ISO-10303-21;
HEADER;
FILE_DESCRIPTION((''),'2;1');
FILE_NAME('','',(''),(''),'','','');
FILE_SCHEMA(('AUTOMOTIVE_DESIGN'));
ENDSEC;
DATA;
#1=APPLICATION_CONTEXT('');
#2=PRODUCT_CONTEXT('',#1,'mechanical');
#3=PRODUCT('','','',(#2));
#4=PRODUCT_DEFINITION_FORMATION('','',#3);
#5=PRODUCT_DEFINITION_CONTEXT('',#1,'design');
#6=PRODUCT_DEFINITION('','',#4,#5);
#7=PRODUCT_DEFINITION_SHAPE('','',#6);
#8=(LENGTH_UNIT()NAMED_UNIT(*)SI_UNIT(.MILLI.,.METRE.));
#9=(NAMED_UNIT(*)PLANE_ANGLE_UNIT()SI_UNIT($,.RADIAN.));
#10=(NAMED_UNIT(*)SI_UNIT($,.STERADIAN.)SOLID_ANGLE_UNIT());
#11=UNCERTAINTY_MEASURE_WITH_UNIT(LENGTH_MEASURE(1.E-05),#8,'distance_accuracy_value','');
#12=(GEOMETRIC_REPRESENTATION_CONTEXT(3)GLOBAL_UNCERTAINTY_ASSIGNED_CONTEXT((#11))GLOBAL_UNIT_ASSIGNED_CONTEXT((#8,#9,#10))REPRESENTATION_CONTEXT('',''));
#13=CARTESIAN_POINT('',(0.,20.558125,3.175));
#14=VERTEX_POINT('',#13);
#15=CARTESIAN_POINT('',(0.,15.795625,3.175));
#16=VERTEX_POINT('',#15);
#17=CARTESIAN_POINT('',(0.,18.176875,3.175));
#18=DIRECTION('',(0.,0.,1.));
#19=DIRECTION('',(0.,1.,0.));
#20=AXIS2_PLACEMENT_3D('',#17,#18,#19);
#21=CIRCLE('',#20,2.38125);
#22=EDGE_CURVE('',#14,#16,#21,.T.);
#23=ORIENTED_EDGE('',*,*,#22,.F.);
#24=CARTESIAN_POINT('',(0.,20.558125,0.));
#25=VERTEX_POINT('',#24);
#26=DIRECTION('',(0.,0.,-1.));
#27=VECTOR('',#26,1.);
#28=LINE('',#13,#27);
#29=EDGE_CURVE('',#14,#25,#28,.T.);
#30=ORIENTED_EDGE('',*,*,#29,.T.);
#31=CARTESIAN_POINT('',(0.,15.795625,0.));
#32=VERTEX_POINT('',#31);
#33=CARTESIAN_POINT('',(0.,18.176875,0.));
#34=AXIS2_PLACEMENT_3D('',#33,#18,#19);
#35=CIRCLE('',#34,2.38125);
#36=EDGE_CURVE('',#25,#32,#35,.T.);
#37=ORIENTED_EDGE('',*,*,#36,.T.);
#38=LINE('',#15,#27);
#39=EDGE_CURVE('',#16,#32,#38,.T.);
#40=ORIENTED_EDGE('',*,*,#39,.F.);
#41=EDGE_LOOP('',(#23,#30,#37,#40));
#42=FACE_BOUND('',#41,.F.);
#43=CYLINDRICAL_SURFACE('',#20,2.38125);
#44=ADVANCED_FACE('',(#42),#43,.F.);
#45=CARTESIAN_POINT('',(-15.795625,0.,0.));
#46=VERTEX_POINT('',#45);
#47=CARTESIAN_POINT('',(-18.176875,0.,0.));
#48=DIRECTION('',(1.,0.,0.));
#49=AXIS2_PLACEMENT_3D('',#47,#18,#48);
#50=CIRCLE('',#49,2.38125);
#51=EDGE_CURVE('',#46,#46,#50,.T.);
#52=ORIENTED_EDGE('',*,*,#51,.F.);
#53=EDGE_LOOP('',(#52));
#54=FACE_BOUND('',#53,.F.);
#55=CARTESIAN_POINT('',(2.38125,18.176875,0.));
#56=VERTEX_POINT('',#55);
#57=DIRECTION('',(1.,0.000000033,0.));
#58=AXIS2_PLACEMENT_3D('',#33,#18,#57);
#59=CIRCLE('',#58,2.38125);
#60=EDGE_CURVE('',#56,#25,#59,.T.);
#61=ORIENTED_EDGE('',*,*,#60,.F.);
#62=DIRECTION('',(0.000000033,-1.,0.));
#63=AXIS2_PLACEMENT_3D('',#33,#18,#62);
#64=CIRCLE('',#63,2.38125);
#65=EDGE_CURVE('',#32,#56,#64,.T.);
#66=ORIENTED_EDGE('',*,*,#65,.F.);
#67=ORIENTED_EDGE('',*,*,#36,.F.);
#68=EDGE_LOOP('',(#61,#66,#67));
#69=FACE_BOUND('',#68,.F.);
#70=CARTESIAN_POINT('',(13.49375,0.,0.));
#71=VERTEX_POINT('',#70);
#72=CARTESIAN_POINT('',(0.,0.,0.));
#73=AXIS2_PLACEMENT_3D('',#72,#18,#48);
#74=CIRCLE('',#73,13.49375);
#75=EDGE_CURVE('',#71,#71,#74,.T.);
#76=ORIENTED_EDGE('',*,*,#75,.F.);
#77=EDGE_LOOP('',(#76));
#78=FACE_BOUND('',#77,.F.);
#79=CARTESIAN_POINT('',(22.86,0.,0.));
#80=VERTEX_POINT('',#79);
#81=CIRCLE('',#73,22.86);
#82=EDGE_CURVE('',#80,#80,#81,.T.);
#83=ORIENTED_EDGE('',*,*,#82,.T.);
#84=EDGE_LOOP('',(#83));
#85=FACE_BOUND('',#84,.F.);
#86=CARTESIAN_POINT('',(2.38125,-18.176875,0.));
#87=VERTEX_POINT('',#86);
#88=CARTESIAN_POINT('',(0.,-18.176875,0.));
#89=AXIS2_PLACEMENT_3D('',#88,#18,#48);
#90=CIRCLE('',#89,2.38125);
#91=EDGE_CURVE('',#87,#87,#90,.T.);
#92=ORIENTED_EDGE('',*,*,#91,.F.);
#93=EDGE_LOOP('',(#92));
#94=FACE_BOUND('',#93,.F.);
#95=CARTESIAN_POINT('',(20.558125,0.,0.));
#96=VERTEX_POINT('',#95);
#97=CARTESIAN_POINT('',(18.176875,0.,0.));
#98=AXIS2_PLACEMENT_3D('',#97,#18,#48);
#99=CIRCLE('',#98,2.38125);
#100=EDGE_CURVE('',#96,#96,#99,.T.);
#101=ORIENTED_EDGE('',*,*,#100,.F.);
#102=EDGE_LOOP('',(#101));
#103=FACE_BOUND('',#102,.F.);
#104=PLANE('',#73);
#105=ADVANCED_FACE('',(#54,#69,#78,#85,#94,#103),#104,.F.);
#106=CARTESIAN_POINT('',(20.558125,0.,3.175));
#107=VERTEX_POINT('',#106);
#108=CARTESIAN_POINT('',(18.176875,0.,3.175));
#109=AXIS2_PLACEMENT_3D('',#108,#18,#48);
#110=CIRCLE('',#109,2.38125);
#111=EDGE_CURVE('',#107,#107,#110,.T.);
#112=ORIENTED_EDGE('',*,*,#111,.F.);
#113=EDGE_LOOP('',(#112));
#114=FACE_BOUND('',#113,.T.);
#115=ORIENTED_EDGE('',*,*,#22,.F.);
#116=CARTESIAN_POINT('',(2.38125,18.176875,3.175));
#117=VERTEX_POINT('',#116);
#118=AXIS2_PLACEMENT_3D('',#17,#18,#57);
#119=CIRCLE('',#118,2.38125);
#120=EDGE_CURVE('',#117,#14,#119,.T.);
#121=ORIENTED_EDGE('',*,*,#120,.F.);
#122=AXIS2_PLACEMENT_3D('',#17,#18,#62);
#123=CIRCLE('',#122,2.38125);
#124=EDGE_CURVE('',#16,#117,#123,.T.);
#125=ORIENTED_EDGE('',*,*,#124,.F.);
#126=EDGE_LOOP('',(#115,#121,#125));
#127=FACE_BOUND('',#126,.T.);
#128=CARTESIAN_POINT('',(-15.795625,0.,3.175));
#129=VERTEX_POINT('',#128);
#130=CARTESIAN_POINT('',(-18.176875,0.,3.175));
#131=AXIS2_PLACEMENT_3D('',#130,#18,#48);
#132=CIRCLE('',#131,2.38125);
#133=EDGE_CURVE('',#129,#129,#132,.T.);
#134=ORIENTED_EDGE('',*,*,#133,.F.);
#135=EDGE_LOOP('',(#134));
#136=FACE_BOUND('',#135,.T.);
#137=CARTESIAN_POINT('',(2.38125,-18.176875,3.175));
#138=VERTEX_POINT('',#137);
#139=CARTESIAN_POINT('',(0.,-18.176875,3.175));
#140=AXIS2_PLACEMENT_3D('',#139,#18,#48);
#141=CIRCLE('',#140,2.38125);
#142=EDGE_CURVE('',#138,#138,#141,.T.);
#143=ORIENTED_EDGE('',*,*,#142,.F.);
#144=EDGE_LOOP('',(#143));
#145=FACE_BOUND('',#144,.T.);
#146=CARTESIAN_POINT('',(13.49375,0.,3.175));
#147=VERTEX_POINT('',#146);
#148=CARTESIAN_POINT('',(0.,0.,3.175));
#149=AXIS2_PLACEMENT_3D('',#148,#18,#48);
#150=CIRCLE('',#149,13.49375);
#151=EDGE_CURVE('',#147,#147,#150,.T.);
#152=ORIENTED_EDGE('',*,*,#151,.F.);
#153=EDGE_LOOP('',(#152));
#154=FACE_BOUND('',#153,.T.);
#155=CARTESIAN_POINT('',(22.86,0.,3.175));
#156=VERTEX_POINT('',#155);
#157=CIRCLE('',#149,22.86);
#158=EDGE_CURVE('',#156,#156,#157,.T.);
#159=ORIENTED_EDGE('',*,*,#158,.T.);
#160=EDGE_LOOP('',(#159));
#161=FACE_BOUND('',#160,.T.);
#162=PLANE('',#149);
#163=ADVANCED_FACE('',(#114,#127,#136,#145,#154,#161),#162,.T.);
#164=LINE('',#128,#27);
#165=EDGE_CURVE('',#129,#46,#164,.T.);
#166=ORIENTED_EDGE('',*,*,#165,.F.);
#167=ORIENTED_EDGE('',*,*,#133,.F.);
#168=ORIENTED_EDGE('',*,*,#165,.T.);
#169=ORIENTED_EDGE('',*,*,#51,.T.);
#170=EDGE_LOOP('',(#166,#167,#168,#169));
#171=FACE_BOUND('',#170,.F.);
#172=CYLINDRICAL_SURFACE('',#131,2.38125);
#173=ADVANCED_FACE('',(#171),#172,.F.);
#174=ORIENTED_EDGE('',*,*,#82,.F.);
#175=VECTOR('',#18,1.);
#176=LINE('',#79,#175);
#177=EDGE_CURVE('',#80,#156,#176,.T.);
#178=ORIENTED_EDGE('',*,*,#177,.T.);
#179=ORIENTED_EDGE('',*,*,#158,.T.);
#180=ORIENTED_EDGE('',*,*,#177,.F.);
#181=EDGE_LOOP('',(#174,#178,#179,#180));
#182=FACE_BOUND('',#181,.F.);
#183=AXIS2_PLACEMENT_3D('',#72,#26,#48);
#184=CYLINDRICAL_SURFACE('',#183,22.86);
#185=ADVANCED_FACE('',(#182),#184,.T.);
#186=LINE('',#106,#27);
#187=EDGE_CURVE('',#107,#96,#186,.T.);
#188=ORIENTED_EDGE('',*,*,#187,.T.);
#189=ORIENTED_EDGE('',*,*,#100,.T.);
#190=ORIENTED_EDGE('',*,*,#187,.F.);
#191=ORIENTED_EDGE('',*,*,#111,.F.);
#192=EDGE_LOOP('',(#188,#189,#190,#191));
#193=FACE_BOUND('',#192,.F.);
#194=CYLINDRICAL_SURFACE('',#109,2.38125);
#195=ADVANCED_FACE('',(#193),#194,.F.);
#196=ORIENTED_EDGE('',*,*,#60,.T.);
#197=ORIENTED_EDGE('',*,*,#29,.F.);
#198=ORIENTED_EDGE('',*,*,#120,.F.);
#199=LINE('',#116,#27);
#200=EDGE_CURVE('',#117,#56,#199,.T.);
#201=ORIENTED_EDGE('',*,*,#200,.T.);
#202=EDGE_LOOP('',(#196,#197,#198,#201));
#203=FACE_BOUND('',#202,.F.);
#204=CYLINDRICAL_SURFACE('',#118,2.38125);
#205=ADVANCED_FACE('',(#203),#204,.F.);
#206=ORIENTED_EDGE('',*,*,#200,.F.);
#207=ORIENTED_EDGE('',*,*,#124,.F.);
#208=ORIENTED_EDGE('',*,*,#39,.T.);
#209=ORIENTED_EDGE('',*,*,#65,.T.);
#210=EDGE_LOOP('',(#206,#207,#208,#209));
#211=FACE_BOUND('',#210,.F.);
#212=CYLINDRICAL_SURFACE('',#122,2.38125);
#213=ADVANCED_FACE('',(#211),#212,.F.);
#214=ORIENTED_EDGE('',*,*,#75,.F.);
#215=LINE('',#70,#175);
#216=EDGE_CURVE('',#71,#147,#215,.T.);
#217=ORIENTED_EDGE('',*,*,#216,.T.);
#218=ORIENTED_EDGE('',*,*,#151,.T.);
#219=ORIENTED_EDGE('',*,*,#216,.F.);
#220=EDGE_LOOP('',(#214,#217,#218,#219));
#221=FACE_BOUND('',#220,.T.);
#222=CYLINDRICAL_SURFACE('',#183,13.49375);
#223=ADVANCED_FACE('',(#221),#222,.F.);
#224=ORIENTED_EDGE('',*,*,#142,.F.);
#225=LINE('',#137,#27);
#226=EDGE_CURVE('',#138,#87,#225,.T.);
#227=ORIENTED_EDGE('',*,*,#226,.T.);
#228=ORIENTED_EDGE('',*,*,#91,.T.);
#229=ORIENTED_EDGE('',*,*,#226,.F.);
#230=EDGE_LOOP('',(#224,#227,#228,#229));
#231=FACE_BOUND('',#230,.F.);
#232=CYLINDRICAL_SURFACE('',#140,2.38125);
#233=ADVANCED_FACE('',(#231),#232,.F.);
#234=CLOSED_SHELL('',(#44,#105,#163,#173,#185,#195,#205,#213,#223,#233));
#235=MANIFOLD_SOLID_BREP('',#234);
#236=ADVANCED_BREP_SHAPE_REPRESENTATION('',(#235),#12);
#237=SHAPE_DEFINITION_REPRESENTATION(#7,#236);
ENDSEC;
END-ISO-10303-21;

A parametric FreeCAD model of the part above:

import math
import FreeCAD as App
import Part
import Sketcher
Q = App.Units.Quantity

doc = App.newDocument("Part")
body = doc.addObject("PartDesign::Body", "Body")

sketch1 = doc.addObject("Sketcher::SketchObject", "Sketch")
body.addObject(sketch1)
sketch1.AttachmentSupport = (doc.XY_Plane, [""])
sketch1.MapMode = "FlatFace"
sketch1.addGeometry([
    Part.Circle(App.Vector(0, 0, 0), App.Vector(0, 0, 1), 23),
    Part.Circle(App.Vector(0, 0, 0), App.Vector(0, 0, 1), 13),
], False)
sketch1.addConstraint([
    Sketcher.Constraint("Coincident", 0, 3, -1, 1),
    Sketcher.Constraint("Coincident", 1, 3, -1, 1),
    Sketcher.Constraint("Diameter", 0, Q("1.8 in")),
    Sketcher.Constraint("Diameter", 1, Q("1.0625 in")),
])
pad1 = doc.addObject("PartDesign::Pad", "Pad")
body.addObject(pad1)
pad1.Profile = sketch1
pad1.Length = Q("0.125 in")

sketch2 = doc.addObject("Sketcher::SketchObject", "Sketch001")
body.addObject(sketch2)
sketch2.AttachmentSupport = (doc.XY_Plane, [""])
sketch2.MapMode = "FlatFace"
sketch2.AttachmentOffset = App.Placement(App.Vector(0, 0, 0.125 * 25.4), App.Rotation())
sketch2.addGeometry([
    Part.ArcOfCircle(Part.Circle(App.Vector(0, 18.2, 0), App.Vector(0, 0, 1), 2.4), math.radians(0), math.radians(90)),
    Part.ArcOfCircle(Part.Circle(App.Vector(0, 18.2, 0), App.Vector(0, 0, 1), 2.4), math.radians(90), math.radians(270)),
    Part.ArcOfCircle(Part.Circle(App.Vector(0, 18.2, 0), App.Vector(0, 0, 1), 2.4), math.radians(-90), math.radians(0)),
    Part.Circle(App.Vector(-18.2, 0, 0), App.Vector(0, 0, 1), 2.4),
    Part.Circle(App.Vector(0, -18.2, 0), App.Vector(0, 0, 1), 2.4),
    Part.Circle(App.Vector(18.2, 0, 0), App.Vector(0, 0, 1), 2.4),
], False)
sketch2.addConstraint([
    Sketcher.Constraint("Tangent", 0, 2, 1, 1),
    Sketcher.Constraint("Tangent", 1, 2, 2, 1),
    Sketcher.Constraint("Tangent", 2, 2, 0, 1),
    Sketcher.Constraint("Equal", 2, 3),
    Sketcher.Constraint("Equal", 3, 4),
    Sketcher.Constraint("Equal", 4, 5),
    Sketcher.Constraint("Symmetric", 0, 3, 4, 3, -1, 1),
    Sketcher.Constraint("Symmetric", 3, 3, 5, 3, -1, 1),
    Sketcher.Constraint("PointOnObject", 0, 3, -2),
    Sketcher.Constraint("PointOnObject", 3, 3, -1),
    Sketcher.Constraint("PointOnObject", 0, 2, -2),
    Sketcher.Constraint("PointOnObject", 1, 2, -2),
    Sketcher.Constraint("Horizontal", 1, 3, 2, 2),
    Sketcher.Constraint("Diameter", 3, Q("0.1875 in")),
    Sketcher.Constraint("DistanceY", 4, 3, 0, 3, 36.35375),
    Sketcher.Constraint("DistanceX", 3, 3, 5, 3, 36.35375),
])
pocket1 = doc.addObject("PartDesign::Pocket", "Pocket")
body.addObject(pocket1)
pocket1.Profile = sketch2
pocket1.Length = Q("1 in")

doc.recompute()
